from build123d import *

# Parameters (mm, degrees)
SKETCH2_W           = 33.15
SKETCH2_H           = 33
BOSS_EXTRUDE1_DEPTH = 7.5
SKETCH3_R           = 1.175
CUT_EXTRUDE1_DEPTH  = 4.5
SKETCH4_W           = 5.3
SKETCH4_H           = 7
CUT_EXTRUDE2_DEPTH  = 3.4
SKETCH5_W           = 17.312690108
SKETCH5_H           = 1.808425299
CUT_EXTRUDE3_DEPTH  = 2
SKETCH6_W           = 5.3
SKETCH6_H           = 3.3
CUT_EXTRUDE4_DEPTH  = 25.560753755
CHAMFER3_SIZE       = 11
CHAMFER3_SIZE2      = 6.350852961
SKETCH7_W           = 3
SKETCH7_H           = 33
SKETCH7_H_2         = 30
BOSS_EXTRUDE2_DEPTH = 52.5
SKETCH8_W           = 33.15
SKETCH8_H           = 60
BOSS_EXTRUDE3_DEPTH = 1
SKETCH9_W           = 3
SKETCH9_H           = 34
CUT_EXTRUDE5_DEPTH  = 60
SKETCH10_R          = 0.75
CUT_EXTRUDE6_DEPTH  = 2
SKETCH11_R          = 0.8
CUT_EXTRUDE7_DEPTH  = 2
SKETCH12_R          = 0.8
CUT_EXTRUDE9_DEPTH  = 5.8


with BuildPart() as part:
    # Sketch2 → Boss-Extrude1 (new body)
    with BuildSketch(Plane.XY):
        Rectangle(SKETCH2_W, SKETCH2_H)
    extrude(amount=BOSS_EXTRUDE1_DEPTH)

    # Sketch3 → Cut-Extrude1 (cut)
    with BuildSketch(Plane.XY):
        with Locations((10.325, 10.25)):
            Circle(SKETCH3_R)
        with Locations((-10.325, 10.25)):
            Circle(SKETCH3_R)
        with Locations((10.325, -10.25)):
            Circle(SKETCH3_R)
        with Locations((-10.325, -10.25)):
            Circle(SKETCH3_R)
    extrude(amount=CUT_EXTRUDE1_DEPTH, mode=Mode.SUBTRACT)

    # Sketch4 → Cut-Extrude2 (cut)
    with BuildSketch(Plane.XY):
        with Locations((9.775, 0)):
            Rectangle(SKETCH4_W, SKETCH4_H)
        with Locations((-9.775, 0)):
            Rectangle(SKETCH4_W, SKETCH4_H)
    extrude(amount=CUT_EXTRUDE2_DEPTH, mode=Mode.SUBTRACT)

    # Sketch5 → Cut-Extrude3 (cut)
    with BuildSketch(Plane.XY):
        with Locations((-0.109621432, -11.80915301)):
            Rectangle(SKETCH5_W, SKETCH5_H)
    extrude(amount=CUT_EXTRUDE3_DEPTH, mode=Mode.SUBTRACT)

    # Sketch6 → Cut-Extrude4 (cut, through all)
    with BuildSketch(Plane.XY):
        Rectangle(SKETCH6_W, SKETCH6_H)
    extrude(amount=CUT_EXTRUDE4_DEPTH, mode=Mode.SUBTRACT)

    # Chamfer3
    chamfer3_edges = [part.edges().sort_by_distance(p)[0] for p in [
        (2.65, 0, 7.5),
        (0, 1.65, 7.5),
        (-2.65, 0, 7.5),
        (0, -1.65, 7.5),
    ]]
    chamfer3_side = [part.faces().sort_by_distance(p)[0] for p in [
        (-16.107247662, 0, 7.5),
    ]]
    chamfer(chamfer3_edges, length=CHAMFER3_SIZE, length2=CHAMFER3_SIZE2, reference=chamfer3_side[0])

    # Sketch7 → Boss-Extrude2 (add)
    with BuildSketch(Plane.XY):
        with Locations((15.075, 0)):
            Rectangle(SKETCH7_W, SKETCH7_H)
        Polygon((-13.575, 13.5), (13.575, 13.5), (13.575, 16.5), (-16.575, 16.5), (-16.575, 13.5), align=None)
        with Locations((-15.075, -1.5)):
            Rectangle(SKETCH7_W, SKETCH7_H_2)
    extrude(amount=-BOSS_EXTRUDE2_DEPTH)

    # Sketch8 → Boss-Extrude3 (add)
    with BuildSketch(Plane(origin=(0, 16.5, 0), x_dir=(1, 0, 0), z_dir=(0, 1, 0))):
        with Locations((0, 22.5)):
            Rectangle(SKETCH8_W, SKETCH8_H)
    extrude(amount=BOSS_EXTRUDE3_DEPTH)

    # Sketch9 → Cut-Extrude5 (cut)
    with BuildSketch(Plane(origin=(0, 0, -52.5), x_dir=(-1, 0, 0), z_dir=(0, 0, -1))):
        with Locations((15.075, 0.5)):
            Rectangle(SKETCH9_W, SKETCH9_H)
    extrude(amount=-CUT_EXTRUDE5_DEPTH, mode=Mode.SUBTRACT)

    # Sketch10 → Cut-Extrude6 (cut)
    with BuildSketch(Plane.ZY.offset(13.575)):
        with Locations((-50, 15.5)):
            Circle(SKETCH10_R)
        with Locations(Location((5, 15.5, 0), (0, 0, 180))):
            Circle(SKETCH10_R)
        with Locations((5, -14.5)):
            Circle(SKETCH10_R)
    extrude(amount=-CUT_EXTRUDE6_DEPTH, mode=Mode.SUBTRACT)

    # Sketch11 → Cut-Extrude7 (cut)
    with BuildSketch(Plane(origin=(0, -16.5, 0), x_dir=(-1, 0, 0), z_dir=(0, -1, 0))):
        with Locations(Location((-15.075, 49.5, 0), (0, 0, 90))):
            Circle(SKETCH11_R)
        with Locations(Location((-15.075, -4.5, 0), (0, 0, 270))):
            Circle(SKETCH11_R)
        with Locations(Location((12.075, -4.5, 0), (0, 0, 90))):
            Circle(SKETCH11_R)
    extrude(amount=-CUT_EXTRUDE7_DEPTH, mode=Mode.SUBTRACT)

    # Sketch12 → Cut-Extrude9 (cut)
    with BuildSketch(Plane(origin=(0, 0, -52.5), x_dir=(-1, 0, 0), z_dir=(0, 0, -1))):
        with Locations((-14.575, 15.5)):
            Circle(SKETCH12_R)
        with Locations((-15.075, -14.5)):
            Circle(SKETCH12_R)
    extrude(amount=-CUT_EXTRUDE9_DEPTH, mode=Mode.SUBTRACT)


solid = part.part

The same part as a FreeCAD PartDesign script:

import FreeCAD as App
import Part
import Sketcher
Q = App.Units.Quantity


def edges_at(feature, points):
    """Names of the edges that pass closest to the given points."""
    edges = feature.Shape.Edges
    near = lambda p: min(range(len(edges)), key=lambda i: edges[i].distToShape(Part.Vertex(*p))[0])
    return sorted({f"Edge{near(p) + 1}" for p in points})


def add_polygon(sketch, points):
    """Adds a closed chain of lines whose ends are joined by coincident constraints."""
    first, n = sketch.GeometryCount, len(points)
    for a, b in zip(points, points[1:] + points[:1]):
        sketch.addGeometry(Part.LineSegment(App.Vector(*a, 0), App.Vector(*b, 0)), False)
    for i in range(n):
        sketch.addConstraint(Sketcher.Constraint("Coincident", first + i, 2, first + (i + 1) % n, 1))

doc = App.newDocument("Part")
body = doc.addObject("PartDesign::Body", "Body")

sketch1 = body.newObject("Sketcher::SketchObject", "Sketch")
sketch1.AttachmentSupport = (doc.getObject("XY_Plane"), [""])
sketch1.MapMode = "FlatFace"
add_polygon(sketch1, [(-17, 16), (-17, -16), (17, -16), (17, 16)])
sketch1.addConstraint([
    Sketcher.Constraint("Vertical", 0),
    Sketcher.Constraint("Horizontal", 1),
    Sketcher.Constraint("Vertical", 2),
    Sketcher.Constraint("Horizontal", 3),
    Sketcher.Constraint("Symmetric", 0, 2, 2, 2, -1, 1),
    Sketcher.Constraint("DistanceY", 0, 2, 0, 1, Q("33 mm")),
    Sketcher.Constraint("DistanceX", 1, 1, 1, 2, Q("33.15 mm")),
])
pad1 = body.newObject("PartDesign::Pad", "Pad")
pad1.Profile = sketch1
pad1.Length = 7.5

sketch2 = body.newObject("Sketcher::SketchObject", "Sketch001")
sketch2.AttachmentSupport = (doc.getObject("XY_Plane"), [""])
sketch2.MapMode = "FlatFace"
sketch2.addGeometry([
    Part.Circle(App.Vector(10.3, 10.2, 0), App.Vector(0, 0, 1), 1.2),
    Part.Circle(App.Vector(-10.3, 10.2, 0), App.Vector(0, 0, 1), 1.2),
    Part.Circle(App.Vector(10.3, -10.2, 0), App.Vector(0, 0, 1), 1.2),
    Part.Circle(App.Vector(-10.3, -10.2, 0), App.Vector(0, 0, 1), 1.2),
], False)
sketch2.addConstraint([
    Sketcher.Constraint("Equal", 0, 1),
    Sketcher.Constraint("Equal", 1, 2),
    Sketcher.Constraint("Equal", 2, 3),
    Sketcher.Constraint("Symmetric", 1, 3, 2, 3, -1, 1),
    Sketcher.Constraint("Symmetric", 0, 3, 3, 3, -1, 1),
    Sketcher.Constraint("Symmetric", 0, 3, 1, 3, -2),
    Sketcher.Constraint("Diameter", 0, Q("2.35 mm")),
    Sketcher.Constraint("DistanceY", 2, 3, 0, 3, Q("20.5 mm")),
    Sketcher.Constraint("DistanceX", 1, 3, 0, 3, Q("20.65 mm")),
])
pocket1 = body.newObject("PartDesign::Pocket", "Pocket")
pocket1.Profile = sketch2
pocket1.Length = 4.5
pocket1.Reversed = True

sketch3 = body.newObject("Sketcher::SketchObject", "Sketch002")
sketch3.AttachmentSupport = (doc.getObject("XY_Plane"), [""])
sketch3.MapMode = "FlatFace"
add_polygon(sketch3, [(7, 4), (7, -4), (12, -4), (12, 4)])
add_polygon(sketch3, [(-12, 4), (-12, -4), (-7, -4), (-7, 4)])
sketch3.addConstraint([
    Sketcher.Constraint("Vertical", 0),
    Sketcher.Constraint("Horizontal", 1),
    Sketcher.Constraint("Vertical", 2),
    Sketcher.Constraint("Horizontal", 3),
    Sketcher.Constraint("Vertical", 4),
    Sketcher.Constraint("Horizontal", 5),
    Sketcher.Constraint("Vertical", 6),
    Sketcher.Constraint("Horizontal", 7),
    Sketcher.Constraint("Symmetric", 2, 2, 4, 2, -1, 1),
    Sketcher.Constraint("Symmetric", 0, 2, 6, 2, -1, 1),
    Sketcher.Constraint("Horizontal", 1, 2, 4, 2),
    Sketcher.Constraint("DistanceY", 0, 2, 0, 1, Q("7 mm")),
    Sketcher.Constraint("DistanceX", 1, 1, 1, 2, Q("5.3 mm")),
    Sketcher.Constraint("DistanceX", 4, 2, 0, 2, Q("19.55 mm")),
])
pocket2 = body.newObject("PartDesign::Pocket", "Pocket001")
pocket2.Profile = sketch3
pocket2.Length = 3.4
pocket2.Reversed = True

sketch4 = body.newObject("Sketcher::SketchObject", "Sketch003")
sketch4.AttachmentSupport = (doc.getObject("XY_Plane"), [""])
sketch4.MapMode = "FlatFace"
add_polygon(sketch4, [(-8.8, -10.9), (-8.8, -12.7), (8.5, -12.7), (8.5, -10.9)])
sketch4.addConstraint([
    Sketcher.Constraint("Vertical", 0),
    Sketcher.Constraint("Horizontal", 1),
    Sketcher.Constraint("Vertical", 2),
    Sketcher.Constraint("Horizontal", 3),
    Sketcher.Constraint("DistanceX", 1, 1, 1, 2, Q("17.31269 mm")),
    Sketcher.Constraint("DistanceY", 0, 2, 0, 1, Q("1.808425 mm")),
    Sketcher.Constraint("DistanceY", 2, 2, -1, 1, Q("10.90494 mm")),
    Sketcher.Constraint("DistanceX", 0, 2, -1, 1, Q("8.765966 mm")),
])
pocket3 = body.newObject("PartDesign::Pocket", "Pocket002")
pocket3.Profile = sketch4
pocket3.Length = 2
pocket3.Reversed = True

sketch5 = body.newObject("Sketcher::SketchObject", "Sketch004")
sketch5.AttachmentSupport = (doc.getObject("XY_Plane"), [""])
sketch5.MapMode = "FlatFace"
add_polygon(sketch5, [(-2.6, 1.6), (-2.6, -1.6), (2.6, -1.6), (2.6, 1.6)])
sketch5.addConstraint([
    Sketcher.Constraint("Vertical", 0),
    Sketcher.Constraint("Horizontal", 1),
    Sketcher.Constraint("Vertical", 2),
    Sketcher.Constraint("Horizontal", 3),
    Sketcher.Constraint("Symmetric", 0, 2, 2, 2, -1, 1),
    Sketcher.Constraint("DistanceX", 1, 1, 1, 2, Q("5.3 mm")),
    Sketcher.Constraint("DistanceY", 0, 2, 0, 1, Q("3.3 mm")),
])
pocket4 = body.newObject("PartDesign::Pocket", "Pocket003")
pocket4.Profile = sketch5
pocket4.Type = "ThroughAll"
pocket4.Reversed = True
doc.recompute()

chamfer = body.newObject("PartDesign::Chamfer", "Chamfer")
chamfer.Base = (pocket4, edges_at(pocket4, [
    (2.65, 0, 7.5),
    (0, 1.65, 7.5),
    (-2.65, 0, 7.5),
    (0, -1.65, 7.5),
]))
chamfer.ChamferType = "Two distances"
chamfer.Size = 11
chamfer.Size2 = 6.350853

sketch6 = body.newObject("Sketcher::SketchObject", "Sketch005")
sketch6.AttachmentSupport = (doc.getObject("XY_Plane"), [""])
sketch6.MapMode = "FlatFace"
add_polygon(sketch6, [(13.6, 13.5), (13.6, -16.5), (16.6, -16.5), (16.6, 16.5), (-16.6, 16.5), (-16.6, -16.5), (-13.6, -16.5), (-13.6, 13.5)])
sketch6.addConstraint([
    Sketcher.Constraint("Vertical", 0),
    Sketcher.Constraint("Horizontal", 1),
    Sketcher.Constraint("Vertical", 2),
    Sketcher.Constraint("Horizontal", 3),
    Sketcher.Constraint("Vertical", 4),
    Sketcher.Constraint("Horizontal", 5),
    Sketcher.Constraint("Vertical", 6),
    Sketcher.Constraint("Horizontal", 7),
    Sketcher.Constraint("Symmetric", 1, 2, 3, 2, -1, 1),
    Sketcher.Constraint("Symmetric", 0, 2, 5, 2, -2),
    Sketcher.Constraint("DistanceX", 1, 1, 1, 2, Q("3 mm")),
    Sketcher.Constraint("DistanceY", 0, 2, 0, 1, Q("30 mm")),
    Sketcher.Constraint("DistanceY", 2, 1, 2, 2, Q("33 mm")),
    Sketcher.Constraint("DistanceX", 3, 2, 3, 1, Q("33.15 mm")),
])
pad2 = body.newObject("PartDesign::Pad", "Pad001")
pad2.Profile = sketch6
pad2.Length = 52.5
pad2.Reversed = True

sketch7 = body.newObject("Sketcher::SketchObject", "Sketch006")
sketch7.AttachmentSupport = (doc.getObject("XZ_Plane"), [""])
sketch7.MapMode = "FlatFace"
sketch7.AttachmentOffset = App.Placement(App.Vector(0, 0, -16.5), App.Rotation())
add_polygon(sketch7, [(-17, -52), (-17, 8), (17, 8), (17, -52)])
sketch7.addConstraint([
    Sketcher.Constraint("Vertical", 0),
    Sketcher.Constraint("Horizontal", 1),
    Sketcher.Constraint("Vertical", 2),
    Sketcher.Constraint("Horizontal", 3),
    Sketcher.Constraint("DistanceY", 0, 1, 0, 2, Q("60 mm")),
    Sketcher.Constraint("DistanceX", 1, 1, 1, 2, Q("33.15 mm")),
    Sketcher.Constraint("DistanceY", -1, 1, 0, 2, Q("7.5 mm")),
    Sketcher.Constraint("DistanceX", 0, 2, -1, 1, Q("16.575 mm")),
])
pad3 = body.newObject("PartDesign::Pad", "Pad002")
pad3.Profile = sketch7
pad3.Length = 1
pad3.Reversed = True

sketch8 = body.newObject("Sketcher::SketchObject", "Sketch007")
sketch8.AttachmentSupport = (doc.getObject("XY_Plane"), [""])
sketch8.MapMode = "FlatFace"
sketch8.AttachmentOffset = App.Placement(App.Vector(0, 0, -52.5), App.Rotation())
add_polygon(sketch8, [(-13.6, 17.5), (-13.6, -16.5), (-16.6, -16.5), (-16.6, 17.5)])
sketch8.addConstraint([
    Sketcher.Constraint("Vertical", 0),
    Sketcher.Constraint("Horizontal", 1),
    Sketcher.Constraint("Vertical", 2),
    Sketcher.Constraint("Horizontal", 3),
    Sketcher.Constraint("DistanceX", 1, 2, 1, 1, Q("3 mm")),
    Sketcher.Constraint("DistanceY", 0, 2, 0, 1, Q("34 mm")),
    Sketcher.Constraint("DistanceY", 0, 2, -1, 1, Q("16.5 mm")),
    Sketcher.Constraint("DistanceX", 0, 2, -1, 1, Q("13.575 mm")),
])
pocket5 = body.newObject("PartDesign::Pocket", "Pocket004")
pocket5.Profile = sketch8
pocket5.Length = 60
pocket5.Reversed = True

sketch9 = body.newObject("Sketcher::SketchObject", "Sketch008")
sketch9.AttachmentSupport = (doc.getObject("YZ_Plane"), [""])
sketch9.MapMode = "FlatFace"
sketch9.AttachmentOffset = App.Placement(App.Vector(0, 0, -13.575), App.Rotation())
sketch9.addGeometry([
    Part.Circle(App.Vector(15.5, -50, 0), App.Vector(0, 0, 1), 0.8),
    Part.Circle(App.Vector(15.5, 5, 0), App.Vector(0, 0, 1), 0.8),
    Part.Circle(App.Vector(-14.5, 5, 0), App.Vector(0, 0, 1), 0.8),
], False)
sketch9.addConstraint([
    Sketcher.Constraint("Equal", 0, 1),
    Sketcher.Constraint("Equal", 1, 2),
    Sketcher.Constraint("Horizontal", 1, 3, 2, 3),
    Sketcher.Constraint("Vertical", 0, 3, 1, 3),
    Sketcher.Constraint("Diameter", 0, Q("1.5 mm")),
    Sketcher.Constraint("DistanceY", 0, 3, -1, 1, Q("50 mm")),
    Sketcher.Constraint("DistanceY", -1, 1, 1, 3, Q("5 mm")),
    Sketcher.Constraint("DistanceX", 2, 3, 1, 3, Q("30 mm")),
    Sketcher.Constraint("DistanceX", -1, 1, 0, 3, Q("15.5 mm")),
])
pocket6 = body.newObject("PartDesign::Pocket", "Pocket005")
pocket6.Profile = sketch9
pocket6.Length = 2
pocket6.Reversed = True

sketch10 = body.newObject("Sketcher::SketchObject", "Sketch009")
sketch10.AttachmentSupport = (doc.getObject("XZ_Plane"), [""])
sketch10.MapMode = "FlatFace"
sketch10.AttachmentOffset = App.Placement(App.Vector(0, 0, 16.5), App.Rotation())
sketch10.addGeometry([
    Part.Circle(App.Vector(15.1, -49.5, 0), App.Vector(0, 0, 1), 0.8),
    Part.Circle(App.Vector(15.1, 4.5, 0), App.Vector(0, 0, 1), 0.8),
    Part.Circle(App.Vector(-12.1, 4.5, 0), App.Vector(0, 0, 1), 0.8),
], False)
sketch10.addConstraint([
    Sketcher.Constraint("Equal", 0, 1),
    Sketcher.Constraint("Equal", 1, 2),
    Sketcher.Constraint("Horizontal", 1, 3, 2, 3),
    Sketcher.Constraint("Vertical", 0, 3, 1, 3),
    Sketcher.Constraint("Diameter", 0, Q("1.6 mm")),
    Sketcher.Constraint("DistanceY", 0, 3, 1, 3, Q("54 mm")),
    Sketcher.Constraint("DistanceY", 0, 3, -1, 1, Q("49.5 mm")),
    Sketcher.Constraint("DistanceX", 2, 3, 1, 3, Q("27.15 mm")),
    Sketcher.Constraint("DistanceX", -1, 1, 0, 3, Q("15.075 mm")),
])
pocket7 = body.newObject("PartDesign::Pocket", "Pocket006")
pocket7.Profile = sketch10
pocket7.Length = 2

sketch11 = body.newObject("Sketcher::SketchObject", "Sketch010")
sketch11.AttachmentSupport = (doc.getObject("XY_Plane"), [""])
sketch11.MapMode = "FlatFace"
sketch11.AttachmentOffset = App.Placement(App.Vector(0, 0, -52.5), App.Rotation())
sketch11.addGeometry([
    Part.Circle(App.Vector(14.6, 15.5, 0), App.Vector(0, 0, 1), 0.8),
    Part.Circle(App.Vector(15.1, -14.5, 0), App.Vector(0, 0, 1), 0.8),
], False)
sketch11.addConstraint([
    Sketcher.Constraint("Equal", 0, 1),
    Sketcher.Constraint("Diameter", 0, Q("1.6 mm")),
    Sketcher.Constraint("DistanceY", 1, 3, 0, 3, Q("30 mm")),
    Sketcher.Constraint("DistanceY", -1, 1, 0, 3, Q("15.5 mm")),
    Sketcher.Constraint("DistanceX", 0, 3, 1, 3, Q("0.5 mm")),
    Sketcher.Constraint("DistanceX", -1, 1, 0, 3, Q("14.575 mm")),
])
pocket8 = body.newObject("PartDesign::Pocket", "Pocket007")
pocket8.Profile = sketch11
pocket8.Length = 5.8
pocket8.Reversed = True

doc.recompute()
